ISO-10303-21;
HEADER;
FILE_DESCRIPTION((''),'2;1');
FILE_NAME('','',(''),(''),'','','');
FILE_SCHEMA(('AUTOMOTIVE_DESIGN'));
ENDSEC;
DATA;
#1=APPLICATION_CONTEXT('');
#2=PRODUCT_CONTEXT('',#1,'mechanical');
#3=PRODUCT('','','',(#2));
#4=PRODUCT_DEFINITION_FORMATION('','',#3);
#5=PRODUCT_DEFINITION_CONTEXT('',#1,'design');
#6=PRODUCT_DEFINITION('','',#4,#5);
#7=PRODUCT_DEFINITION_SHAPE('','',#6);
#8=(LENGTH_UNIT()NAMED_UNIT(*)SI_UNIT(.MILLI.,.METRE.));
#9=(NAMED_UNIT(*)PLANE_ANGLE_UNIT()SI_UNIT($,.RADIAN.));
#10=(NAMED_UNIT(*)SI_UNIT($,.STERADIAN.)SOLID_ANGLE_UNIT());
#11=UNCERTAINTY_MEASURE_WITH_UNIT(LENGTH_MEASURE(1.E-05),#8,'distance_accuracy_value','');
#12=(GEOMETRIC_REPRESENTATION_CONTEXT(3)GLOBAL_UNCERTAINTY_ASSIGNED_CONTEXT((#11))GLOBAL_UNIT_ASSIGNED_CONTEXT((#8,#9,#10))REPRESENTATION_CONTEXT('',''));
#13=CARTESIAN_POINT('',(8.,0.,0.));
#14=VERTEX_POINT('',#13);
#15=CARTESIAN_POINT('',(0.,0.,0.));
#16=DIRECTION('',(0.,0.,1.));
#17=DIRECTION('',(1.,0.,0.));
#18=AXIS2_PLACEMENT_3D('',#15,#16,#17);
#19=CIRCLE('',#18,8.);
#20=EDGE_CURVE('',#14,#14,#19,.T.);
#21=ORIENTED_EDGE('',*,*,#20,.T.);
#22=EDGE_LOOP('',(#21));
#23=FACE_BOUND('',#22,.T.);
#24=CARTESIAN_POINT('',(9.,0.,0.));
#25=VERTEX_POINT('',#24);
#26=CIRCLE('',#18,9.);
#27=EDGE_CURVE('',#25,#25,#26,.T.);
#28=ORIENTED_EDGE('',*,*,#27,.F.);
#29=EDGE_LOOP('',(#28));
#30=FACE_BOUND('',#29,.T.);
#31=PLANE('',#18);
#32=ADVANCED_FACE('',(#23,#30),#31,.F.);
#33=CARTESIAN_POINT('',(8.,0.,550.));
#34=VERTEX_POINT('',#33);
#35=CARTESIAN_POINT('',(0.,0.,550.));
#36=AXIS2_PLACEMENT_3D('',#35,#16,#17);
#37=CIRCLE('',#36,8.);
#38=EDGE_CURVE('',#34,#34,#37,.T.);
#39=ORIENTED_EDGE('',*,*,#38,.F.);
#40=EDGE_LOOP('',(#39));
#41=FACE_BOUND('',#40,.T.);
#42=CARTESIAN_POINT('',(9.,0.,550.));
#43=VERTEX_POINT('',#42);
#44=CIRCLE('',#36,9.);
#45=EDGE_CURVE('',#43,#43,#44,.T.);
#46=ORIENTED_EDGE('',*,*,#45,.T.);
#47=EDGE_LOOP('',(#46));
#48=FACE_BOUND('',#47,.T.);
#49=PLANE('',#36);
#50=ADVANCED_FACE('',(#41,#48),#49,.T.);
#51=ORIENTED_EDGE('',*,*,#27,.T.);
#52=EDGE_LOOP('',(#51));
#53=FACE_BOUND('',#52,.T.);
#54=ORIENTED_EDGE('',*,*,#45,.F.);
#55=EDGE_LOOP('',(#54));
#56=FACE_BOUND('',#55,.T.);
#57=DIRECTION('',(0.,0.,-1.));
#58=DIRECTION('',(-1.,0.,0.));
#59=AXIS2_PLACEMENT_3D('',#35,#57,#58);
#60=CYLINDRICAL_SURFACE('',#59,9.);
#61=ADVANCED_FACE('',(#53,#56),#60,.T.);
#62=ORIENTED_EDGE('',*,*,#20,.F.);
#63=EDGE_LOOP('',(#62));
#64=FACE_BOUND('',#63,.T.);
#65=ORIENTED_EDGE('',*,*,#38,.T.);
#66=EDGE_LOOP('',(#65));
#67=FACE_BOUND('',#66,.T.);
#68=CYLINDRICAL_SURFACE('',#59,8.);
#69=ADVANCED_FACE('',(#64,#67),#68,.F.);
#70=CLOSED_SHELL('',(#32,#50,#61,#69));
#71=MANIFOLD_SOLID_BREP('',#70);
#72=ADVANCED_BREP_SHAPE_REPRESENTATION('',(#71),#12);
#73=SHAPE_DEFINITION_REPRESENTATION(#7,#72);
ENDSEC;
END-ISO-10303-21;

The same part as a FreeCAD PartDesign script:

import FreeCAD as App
import Part
import Sketcher

V = App.Vector

doc = App.newDocument("Part")
body = doc.addObject("PartDesign::Body", "Body")

sketch1 = doc.addObject("Sketcher::SketchObject", "Sketch")
body.addObject(sketch1)
sketch1.AttachmentSupport = (doc.XY_Plane, [""])
sketch1.MapMode = "FlatFace"
sketch1.addGeometry(Part.Circle(V(0, 0, 0), V(0, 0, 1), 9), False)
sketch1.addGeometry(Part.Circle(V(0, 0, 0), V(0, 0, 1), 8), False)
sketch1.addConstraint(Sketcher.Constraint("Coincident", 0, 3, -1, 1))
sketch1.addConstraint(Sketcher.Constraint("Coincident", 1, 3, -1, 1))
sketch1.addConstraint(Sketcher.Constraint("Diameter", 0, 18.0))
sketch1.addConstraint(Sketcher.Constraint("Diameter", 1, 16.0))
pad1 = doc.addObject("PartDesign::Pad", "Pad")
body.addObject(pad1)
pad1.Profile = sketch1
pad1.Length = 550

doc.recompute()
